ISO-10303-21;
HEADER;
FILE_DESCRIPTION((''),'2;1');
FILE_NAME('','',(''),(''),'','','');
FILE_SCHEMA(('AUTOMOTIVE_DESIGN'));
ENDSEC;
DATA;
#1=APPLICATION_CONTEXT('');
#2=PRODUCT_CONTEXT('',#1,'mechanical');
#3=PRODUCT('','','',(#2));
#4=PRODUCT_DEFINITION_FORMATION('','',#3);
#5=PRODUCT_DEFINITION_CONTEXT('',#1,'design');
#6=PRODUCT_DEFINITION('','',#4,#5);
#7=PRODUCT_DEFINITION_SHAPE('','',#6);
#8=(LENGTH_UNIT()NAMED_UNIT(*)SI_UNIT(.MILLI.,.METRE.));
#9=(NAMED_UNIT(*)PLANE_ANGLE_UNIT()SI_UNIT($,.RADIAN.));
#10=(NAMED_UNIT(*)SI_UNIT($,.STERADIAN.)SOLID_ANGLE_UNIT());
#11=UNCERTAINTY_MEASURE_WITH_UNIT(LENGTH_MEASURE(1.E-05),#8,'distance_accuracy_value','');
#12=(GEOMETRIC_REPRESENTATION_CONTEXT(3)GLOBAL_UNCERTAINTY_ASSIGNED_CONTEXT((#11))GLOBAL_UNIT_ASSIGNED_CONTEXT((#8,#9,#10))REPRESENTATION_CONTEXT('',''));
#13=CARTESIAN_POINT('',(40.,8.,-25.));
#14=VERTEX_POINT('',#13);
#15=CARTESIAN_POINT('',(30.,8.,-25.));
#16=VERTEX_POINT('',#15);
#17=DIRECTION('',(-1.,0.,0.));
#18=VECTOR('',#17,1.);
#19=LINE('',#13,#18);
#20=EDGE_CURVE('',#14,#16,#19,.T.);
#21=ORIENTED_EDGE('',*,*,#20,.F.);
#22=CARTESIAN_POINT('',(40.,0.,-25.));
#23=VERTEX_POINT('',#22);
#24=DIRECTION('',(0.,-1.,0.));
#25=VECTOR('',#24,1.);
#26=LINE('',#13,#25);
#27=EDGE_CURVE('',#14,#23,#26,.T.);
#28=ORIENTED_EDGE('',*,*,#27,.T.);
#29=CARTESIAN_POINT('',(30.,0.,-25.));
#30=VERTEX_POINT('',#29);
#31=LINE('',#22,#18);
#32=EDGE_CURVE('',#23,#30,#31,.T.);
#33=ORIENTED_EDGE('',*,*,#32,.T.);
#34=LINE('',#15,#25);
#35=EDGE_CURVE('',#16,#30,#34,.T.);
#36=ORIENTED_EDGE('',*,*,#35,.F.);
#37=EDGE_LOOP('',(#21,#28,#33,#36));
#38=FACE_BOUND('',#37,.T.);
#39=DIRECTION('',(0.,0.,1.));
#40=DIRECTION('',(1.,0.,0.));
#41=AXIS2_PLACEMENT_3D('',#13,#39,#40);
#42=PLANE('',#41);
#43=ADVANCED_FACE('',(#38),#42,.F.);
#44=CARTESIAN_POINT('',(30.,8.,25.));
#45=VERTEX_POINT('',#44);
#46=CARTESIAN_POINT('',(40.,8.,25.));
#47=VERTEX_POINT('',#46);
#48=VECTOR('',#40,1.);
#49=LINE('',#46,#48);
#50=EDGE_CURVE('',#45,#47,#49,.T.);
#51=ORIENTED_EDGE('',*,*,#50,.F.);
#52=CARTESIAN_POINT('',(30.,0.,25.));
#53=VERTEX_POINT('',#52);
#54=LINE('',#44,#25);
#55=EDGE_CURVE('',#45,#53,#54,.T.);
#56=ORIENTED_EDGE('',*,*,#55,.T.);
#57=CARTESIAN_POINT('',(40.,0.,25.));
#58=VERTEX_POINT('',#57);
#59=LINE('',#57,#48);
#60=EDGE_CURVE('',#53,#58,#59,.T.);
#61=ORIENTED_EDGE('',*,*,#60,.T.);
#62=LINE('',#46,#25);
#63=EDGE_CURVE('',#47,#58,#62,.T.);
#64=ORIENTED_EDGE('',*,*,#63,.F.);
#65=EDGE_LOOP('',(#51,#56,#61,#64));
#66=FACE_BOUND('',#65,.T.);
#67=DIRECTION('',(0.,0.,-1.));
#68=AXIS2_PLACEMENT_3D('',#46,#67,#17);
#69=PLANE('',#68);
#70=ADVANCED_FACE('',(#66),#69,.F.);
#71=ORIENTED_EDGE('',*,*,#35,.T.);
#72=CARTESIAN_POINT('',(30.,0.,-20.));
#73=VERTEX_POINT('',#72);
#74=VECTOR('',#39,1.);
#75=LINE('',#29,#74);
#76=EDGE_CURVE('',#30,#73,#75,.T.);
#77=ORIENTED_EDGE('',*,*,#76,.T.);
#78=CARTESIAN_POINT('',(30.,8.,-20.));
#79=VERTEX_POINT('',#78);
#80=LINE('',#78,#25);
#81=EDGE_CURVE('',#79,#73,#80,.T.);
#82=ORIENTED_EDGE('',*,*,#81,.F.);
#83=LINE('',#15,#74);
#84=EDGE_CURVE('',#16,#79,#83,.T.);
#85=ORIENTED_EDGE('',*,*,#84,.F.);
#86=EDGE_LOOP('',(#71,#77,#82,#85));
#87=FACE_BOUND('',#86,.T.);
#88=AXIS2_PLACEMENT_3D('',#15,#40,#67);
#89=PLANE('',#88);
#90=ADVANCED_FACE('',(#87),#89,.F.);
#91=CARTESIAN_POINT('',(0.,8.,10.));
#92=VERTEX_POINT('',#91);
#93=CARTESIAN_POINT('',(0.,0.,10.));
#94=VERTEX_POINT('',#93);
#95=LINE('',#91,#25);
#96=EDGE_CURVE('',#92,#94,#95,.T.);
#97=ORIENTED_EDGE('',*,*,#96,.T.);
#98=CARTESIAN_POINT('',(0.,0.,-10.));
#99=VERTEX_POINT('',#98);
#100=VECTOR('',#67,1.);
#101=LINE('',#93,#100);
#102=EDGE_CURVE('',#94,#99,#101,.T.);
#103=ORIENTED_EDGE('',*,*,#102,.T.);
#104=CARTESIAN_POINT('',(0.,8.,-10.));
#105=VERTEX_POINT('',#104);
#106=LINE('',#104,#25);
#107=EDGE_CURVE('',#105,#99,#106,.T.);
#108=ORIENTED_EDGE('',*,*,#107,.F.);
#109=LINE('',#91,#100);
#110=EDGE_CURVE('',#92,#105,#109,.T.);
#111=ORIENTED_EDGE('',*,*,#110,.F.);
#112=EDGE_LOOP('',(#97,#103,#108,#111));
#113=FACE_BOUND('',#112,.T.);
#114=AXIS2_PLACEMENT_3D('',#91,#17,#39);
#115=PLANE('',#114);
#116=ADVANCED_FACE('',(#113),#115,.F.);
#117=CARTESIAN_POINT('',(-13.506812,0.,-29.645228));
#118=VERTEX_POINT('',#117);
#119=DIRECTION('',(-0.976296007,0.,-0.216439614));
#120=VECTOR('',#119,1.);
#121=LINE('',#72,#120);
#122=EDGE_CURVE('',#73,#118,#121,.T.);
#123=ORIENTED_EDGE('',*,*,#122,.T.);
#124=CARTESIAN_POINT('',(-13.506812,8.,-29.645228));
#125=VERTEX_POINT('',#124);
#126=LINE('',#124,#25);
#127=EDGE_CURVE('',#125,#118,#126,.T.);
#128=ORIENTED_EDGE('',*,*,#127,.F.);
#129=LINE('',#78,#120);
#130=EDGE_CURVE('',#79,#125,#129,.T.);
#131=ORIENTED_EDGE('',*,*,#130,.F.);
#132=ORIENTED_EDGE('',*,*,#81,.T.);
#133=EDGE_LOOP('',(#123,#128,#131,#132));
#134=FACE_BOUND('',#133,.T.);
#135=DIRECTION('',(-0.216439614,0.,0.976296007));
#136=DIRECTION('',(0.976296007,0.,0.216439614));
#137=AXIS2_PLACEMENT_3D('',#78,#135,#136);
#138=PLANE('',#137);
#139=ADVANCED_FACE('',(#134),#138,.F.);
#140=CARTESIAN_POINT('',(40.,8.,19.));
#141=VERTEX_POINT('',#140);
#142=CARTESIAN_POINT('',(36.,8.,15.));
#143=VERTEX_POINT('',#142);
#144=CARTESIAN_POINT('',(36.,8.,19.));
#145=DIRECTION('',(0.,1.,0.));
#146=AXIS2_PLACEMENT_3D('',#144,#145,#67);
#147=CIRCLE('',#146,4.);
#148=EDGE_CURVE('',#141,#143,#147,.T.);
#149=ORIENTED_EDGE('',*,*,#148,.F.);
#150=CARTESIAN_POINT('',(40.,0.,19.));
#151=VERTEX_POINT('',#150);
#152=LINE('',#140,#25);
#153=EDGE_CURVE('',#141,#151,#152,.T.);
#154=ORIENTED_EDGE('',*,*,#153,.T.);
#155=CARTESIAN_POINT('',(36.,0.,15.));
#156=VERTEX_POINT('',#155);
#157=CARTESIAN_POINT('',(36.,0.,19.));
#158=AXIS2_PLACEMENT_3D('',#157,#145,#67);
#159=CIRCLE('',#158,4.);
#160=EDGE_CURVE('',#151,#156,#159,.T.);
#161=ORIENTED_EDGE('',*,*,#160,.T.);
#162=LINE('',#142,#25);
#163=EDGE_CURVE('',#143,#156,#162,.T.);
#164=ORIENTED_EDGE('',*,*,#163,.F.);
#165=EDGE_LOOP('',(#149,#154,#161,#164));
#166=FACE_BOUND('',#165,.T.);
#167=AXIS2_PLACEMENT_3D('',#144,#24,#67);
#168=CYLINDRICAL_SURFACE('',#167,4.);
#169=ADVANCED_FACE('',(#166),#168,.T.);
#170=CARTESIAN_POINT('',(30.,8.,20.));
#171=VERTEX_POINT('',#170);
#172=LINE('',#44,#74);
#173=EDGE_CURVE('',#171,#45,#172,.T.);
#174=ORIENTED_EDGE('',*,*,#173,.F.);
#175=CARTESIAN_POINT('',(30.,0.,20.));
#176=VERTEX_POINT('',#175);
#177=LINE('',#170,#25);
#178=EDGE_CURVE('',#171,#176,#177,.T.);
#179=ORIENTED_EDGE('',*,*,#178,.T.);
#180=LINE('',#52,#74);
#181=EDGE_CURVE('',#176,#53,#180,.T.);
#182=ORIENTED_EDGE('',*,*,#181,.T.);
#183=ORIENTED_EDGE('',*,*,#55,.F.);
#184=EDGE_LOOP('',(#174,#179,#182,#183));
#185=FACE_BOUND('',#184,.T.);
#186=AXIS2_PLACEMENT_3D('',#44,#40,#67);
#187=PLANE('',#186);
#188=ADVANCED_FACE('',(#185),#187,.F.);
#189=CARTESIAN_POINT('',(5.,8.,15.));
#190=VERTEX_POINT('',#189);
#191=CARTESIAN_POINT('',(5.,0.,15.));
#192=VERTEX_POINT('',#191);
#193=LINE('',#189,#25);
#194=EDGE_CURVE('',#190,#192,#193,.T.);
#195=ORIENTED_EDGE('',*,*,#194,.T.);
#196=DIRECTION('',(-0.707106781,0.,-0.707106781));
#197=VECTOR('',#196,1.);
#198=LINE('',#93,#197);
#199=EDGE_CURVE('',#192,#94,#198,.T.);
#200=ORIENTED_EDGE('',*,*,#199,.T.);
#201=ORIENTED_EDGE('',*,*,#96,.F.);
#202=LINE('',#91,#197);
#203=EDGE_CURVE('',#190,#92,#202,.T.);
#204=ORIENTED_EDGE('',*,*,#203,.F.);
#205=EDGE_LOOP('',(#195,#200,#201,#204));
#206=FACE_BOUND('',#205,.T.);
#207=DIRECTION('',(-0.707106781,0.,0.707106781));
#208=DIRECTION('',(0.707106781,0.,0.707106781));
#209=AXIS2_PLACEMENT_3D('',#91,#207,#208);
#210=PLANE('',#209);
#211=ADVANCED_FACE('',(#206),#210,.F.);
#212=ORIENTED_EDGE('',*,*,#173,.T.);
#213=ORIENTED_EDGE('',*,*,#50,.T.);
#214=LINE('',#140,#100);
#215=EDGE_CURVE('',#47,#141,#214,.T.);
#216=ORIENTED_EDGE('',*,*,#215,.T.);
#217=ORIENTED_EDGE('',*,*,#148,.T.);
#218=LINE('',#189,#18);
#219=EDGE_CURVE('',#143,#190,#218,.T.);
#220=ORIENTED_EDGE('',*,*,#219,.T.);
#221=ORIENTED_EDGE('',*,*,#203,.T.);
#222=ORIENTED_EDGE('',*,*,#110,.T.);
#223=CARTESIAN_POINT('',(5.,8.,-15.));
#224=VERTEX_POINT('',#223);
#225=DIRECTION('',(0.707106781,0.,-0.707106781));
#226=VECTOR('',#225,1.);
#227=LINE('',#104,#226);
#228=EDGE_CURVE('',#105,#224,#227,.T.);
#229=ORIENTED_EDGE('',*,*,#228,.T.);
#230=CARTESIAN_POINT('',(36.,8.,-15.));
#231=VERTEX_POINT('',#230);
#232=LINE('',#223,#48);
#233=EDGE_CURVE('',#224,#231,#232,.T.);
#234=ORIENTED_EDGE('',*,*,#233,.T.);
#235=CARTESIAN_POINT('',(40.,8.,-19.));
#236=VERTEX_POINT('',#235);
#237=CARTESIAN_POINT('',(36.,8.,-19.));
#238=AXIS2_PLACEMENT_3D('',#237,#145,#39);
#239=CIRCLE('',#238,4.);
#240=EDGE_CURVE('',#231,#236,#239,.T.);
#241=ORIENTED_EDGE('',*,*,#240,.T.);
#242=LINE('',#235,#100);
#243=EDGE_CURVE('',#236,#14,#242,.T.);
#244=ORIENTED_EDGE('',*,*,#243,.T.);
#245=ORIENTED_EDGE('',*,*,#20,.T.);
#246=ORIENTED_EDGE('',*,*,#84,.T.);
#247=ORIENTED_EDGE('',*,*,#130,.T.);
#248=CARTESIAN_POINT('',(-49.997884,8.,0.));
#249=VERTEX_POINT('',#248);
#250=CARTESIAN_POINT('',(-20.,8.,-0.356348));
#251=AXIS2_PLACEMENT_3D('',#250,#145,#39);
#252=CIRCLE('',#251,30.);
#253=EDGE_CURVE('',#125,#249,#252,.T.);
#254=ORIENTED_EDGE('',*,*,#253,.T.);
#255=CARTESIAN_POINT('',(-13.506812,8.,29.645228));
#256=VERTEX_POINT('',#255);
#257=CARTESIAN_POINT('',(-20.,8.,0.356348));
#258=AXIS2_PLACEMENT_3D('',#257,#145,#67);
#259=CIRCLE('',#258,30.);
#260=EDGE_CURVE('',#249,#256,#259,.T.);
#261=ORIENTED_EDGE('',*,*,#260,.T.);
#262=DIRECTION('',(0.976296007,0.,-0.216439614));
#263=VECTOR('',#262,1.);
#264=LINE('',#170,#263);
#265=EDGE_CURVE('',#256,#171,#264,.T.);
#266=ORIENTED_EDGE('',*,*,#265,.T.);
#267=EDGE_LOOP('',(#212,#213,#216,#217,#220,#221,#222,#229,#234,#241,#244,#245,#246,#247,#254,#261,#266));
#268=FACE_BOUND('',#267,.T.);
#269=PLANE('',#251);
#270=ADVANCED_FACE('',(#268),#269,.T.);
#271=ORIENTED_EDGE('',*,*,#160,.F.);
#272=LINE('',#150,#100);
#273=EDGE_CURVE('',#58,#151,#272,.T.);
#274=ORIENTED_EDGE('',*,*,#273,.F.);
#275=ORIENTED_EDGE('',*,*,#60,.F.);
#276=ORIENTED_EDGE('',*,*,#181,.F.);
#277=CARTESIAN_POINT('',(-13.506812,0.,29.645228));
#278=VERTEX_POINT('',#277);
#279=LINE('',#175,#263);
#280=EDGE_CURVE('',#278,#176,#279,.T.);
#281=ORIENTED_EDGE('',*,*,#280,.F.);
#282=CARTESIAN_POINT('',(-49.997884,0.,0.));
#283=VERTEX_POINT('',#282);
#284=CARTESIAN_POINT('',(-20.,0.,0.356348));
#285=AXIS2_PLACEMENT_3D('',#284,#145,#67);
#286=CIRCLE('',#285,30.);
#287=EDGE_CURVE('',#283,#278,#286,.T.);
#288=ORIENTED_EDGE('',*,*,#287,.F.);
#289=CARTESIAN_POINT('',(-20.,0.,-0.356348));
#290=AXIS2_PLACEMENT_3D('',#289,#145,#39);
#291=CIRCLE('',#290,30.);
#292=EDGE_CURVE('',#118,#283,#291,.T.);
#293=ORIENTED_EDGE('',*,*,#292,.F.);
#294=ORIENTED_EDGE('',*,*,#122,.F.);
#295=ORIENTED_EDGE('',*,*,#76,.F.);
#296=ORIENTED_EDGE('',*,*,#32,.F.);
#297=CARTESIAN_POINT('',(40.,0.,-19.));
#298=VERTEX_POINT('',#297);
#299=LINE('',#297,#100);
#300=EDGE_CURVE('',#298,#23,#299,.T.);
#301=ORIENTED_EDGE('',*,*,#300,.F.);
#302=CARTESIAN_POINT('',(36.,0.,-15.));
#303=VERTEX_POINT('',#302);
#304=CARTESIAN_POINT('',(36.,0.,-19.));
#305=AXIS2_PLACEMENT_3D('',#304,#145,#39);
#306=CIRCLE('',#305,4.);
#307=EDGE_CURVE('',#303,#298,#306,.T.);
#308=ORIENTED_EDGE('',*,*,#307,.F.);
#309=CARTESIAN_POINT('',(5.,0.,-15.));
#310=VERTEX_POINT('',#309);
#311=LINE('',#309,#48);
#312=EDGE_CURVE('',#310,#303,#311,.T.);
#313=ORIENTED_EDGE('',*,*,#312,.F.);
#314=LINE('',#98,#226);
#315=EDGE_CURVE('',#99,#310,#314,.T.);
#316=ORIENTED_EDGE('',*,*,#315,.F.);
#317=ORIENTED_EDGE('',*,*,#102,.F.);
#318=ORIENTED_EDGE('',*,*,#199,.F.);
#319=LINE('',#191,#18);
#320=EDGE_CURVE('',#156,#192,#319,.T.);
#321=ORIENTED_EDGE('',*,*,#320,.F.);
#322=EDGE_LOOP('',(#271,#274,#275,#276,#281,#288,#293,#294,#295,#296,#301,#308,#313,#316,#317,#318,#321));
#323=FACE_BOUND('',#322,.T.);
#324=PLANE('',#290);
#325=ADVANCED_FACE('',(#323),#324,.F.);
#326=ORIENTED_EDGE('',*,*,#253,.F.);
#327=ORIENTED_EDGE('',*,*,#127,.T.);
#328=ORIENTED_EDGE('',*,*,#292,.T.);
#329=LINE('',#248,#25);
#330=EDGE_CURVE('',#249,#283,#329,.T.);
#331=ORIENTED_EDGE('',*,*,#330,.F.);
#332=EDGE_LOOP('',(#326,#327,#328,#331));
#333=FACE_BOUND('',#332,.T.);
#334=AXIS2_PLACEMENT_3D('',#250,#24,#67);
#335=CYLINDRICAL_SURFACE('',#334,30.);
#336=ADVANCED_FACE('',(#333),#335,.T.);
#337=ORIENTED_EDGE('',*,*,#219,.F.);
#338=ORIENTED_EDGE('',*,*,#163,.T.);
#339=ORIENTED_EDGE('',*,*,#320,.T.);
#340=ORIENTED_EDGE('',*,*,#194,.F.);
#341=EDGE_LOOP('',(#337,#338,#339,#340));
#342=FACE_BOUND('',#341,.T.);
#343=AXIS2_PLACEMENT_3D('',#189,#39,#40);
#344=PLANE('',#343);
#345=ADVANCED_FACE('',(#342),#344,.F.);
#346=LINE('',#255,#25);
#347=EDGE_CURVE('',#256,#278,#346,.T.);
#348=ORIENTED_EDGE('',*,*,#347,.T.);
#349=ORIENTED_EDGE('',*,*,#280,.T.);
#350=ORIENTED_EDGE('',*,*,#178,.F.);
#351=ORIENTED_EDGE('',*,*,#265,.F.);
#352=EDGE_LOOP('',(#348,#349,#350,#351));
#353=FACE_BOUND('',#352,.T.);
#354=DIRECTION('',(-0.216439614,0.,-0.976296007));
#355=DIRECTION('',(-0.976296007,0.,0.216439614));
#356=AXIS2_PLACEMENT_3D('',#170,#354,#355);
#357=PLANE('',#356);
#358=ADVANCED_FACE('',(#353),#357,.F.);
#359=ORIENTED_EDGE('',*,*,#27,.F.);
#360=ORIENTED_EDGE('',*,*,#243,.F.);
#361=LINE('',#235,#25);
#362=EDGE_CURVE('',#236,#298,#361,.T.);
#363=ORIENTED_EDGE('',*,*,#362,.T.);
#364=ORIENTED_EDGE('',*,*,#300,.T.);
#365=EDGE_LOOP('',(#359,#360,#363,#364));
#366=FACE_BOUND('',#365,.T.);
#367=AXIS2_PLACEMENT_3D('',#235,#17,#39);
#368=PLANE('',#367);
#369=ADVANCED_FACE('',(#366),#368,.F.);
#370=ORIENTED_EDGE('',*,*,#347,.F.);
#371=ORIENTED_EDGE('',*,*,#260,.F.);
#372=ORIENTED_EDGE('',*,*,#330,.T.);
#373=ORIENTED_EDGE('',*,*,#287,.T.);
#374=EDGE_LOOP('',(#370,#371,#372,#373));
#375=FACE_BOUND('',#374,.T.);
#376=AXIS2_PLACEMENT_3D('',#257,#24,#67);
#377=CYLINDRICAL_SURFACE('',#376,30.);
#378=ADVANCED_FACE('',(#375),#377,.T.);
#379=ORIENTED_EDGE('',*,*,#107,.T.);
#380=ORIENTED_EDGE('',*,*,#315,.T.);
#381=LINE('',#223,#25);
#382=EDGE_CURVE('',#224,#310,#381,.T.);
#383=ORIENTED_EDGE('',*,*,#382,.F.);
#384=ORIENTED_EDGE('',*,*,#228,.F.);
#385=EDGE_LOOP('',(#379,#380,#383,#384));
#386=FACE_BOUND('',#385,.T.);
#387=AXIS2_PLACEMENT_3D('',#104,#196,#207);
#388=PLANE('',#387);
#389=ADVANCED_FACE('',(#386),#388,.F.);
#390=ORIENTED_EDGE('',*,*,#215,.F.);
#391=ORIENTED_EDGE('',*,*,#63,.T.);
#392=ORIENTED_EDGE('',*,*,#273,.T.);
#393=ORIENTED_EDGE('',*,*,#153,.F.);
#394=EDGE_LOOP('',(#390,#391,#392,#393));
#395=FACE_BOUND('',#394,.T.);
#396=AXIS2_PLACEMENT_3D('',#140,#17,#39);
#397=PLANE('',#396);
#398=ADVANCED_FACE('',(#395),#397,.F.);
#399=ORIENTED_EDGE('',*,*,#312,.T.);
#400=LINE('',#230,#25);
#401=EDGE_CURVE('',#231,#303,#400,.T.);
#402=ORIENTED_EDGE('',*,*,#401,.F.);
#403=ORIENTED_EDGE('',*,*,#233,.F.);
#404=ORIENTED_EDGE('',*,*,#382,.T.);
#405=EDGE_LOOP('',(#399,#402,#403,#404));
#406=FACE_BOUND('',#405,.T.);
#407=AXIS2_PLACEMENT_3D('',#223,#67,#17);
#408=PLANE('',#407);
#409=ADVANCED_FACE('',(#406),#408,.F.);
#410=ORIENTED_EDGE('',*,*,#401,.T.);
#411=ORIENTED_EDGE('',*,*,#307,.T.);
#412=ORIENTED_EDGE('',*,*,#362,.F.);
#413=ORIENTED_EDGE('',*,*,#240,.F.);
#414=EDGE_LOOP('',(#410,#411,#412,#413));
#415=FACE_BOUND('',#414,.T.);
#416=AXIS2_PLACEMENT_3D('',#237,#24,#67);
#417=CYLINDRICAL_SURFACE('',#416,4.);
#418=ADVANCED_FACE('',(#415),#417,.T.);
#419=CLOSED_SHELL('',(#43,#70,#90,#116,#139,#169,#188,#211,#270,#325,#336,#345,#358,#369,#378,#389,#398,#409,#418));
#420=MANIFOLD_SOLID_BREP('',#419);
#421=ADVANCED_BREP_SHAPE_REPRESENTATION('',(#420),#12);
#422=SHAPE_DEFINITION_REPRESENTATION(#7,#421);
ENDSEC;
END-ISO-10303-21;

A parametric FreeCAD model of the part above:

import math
import FreeCAD as App
import Part
import Sketcher
from FreeCAD import Vector
Q = App.Units.Quantity

doc = App.newDocument("Part")
params = doc.addObject("Spreadsheet::Sheet", "Params")
for row, (alias, value) in enumerate([
    ("sketch1_radius", "4 mm"),
    ("sketch1_radius2", "30 mm"),
    ("sketch1_width", "31 mm"),
    ("sketch1_width2", "10 mm"),
    ("sketch1_height", "20 mm"),
    ("pad1_length", "8 mm"),
], start=1):
    params.set(f"A{row}", alias)
    params.set(f"B{row}", "=" + value)
    params.setAlias(f"B{row}", alias)

body = doc.addObject("PartDesign::Body", "Body")

# Sketch on XZ plane
sketch1 = doc.addObject("Sketcher::SketchObject", "Sketch")
body.addObject(sketch1)
sketch1.AttachmentSupport = (doc.XZ_Plane, [""])
sketch1.MapMode = "FlatFace"
sketch1.addGeometry([
    Part.LineSegment(Vector(0, 10, 0), Vector(0, -10, 0)),  # 0
    Part.LineSegment(Vector(0, -10, 0), Vector(5, -15, 0)),  # 1
    Part.LineSegment(Vector(5, -15, 0), Vector(36, -15, 0)),  # 2
    Part.ArcOfCircle(Part.Circle(Vector(36, -19, 0), Vector(0, 0, 1), 4), math.radians(0), math.radians(90)),  # 3
    Part.LineSegment(Vector(40, -19, 0), Vector(40, -25, 0)),  # 4
    Part.LineSegment(Vector(40, -25, 0), Vector(30, -25, 0)),  # 5
    Part.LineSegment(Vector(30, -25, 0), Vector(30, -20, 0)),  # 6
    Part.LineSegment(Vector(30, -20, 0), Vector(-13.506812, -29.645228, 0)),  # 7
    Part.ArcOfCircle(Part.Circle(Vector(-20, -0.356348, 0), Vector(0, 0, 1), 30), math.radians(179.31941), math.radians(282.5)),  # 8
    Part.ArcOfCircle(Part.Circle(Vector(-20, 0.356348, 0), Vector(0, 0, 1), 30), math.radians(77.5), math.radians(180.68059)),  # 9
    Part.LineSegment(Vector(-13.506812, 29.645228, 0), Vector(30, 20, 0)),  # 10
    Part.LineSegment(Vector(30, 20, 0), Vector(30, 25, 0)),  # 11
    Part.LineSegment(Vector(30, 25, 0), Vector(40, 25, 0)),  # 12
    Part.LineSegment(Vector(40, 25, 0), Vector(40, 19, 0)),  # 13
    Part.ArcOfCircle(Part.Circle(Vector(36, 19, 0), Vector(0, 0, 1), 4), math.radians(-90), math.radians(0)),  # 14
    Part.LineSegment(Vector(36, 15, 0), Vector(5, 15, 0)),  # 15
    Part.LineSegment(Vector(5, 15, 0), Vector(0, 10, 0)),  # 16
], False)
sketch1.addConstraint([
    Sketcher.Constraint("Coincident", 0, 2, 1, 1),
    Sketcher.Constraint("Coincident", 1, 2, 2, 1),
    Sketcher.Constraint("Tangent", 2, 2, 3, 2),
    Sketcher.Constraint("Tangent", 3, 1, 4, 1),
    Sketcher.Constraint("Coincident", 4, 2, 5, 1),
    Sketcher.Constraint("Coincident", 5, 2, 6, 1),
    Sketcher.Constraint("Coincident", 6, 2, 7, 1),
    Sketcher.Constraint("Tangent", 7, 2, 8, 2),
    Sketcher.Constraint("Coincident", 8, 1, 9, 2),
    Sketcher.Constraint("Tangent", 9, 1, 10, 1),
    Sketcher.Constraint("Coincident", 10, 2, 11, 1),
    Sketcher.Constraint("Coincident", 11, 2, 12, 1),
    Sketcher.Constraint("Coincident", 12, 2, 13, 1),
    Sketcher.Constraint("Tangent", 13, 2, 14, 2),
    Sketcher.Constraint("Tangent", 14, 1, 15, 1),
    Sketcher.Constraint("Coincident", 15, 2, 16, 1),
    Sketcher.Constraint("Coincident", 16, 2, 0, 1),
    Sketcher.Constraint("Vertical", 0),
    Sketcher.Constraint("Horizontal", 2),
    Sketcher.Constraint("Vertical", 4),
    Sketcher.Constraint("Horizontal", 5),
    Sketcher.Constraint("Vertical", 6),
    Sketcher.Constraint("Vertical", 11),
    Sketcher.Constraint("Horizontal", 12),
    Sketcher.Constraint("Vertical", 13),
    Sketcher.Constraint("Horizontal", 15),
    Sketcher.Constraint("Equal", 8, 9),
    Sketcher.Constraint("Equal", 3, 14),
    Sketcher.Constraint("Symmetric", 0, 2, 16, 2, -1, 1),
    Sketcher.Constraint("Symmetric", 8, 3, 9, 3, -1),
    Sketcher.Constraint("Symmetric", 3, 3, 14, 3, -1),
    Sketcher.Constraint("Symmetric", 6, 2, 10, 2, -1),
    Sketcher.Constraint("Perpendicular", 1, 16),
    Sketcher.Constraint("Vertical", 1, 2, 15, 2),
    Sketcher.Constraint("Equal", 6, 11),
    Sketcher.Constraint("Radius", 3, Q("4 mm")),
    Sketcher.Constraint("Radius", 8, Q("30 mm")),
    Sketcher.Constraint("DistanceX", 2, 1, 2, 2, Q("31 mm")),
    Sketcher.Constraint("DistanceX", 5, 2, 5, 1, Q("10 mm")),
    Sketcher.Constraint("DistanceY", 0, 2, 0, 1, Q("20 mm")),
    Sketcher.Constraint("DistanceY", 4, 2, 4, 1, Q("6 mm")),
    Sketcher.Constraint("DistanceY", 6, 1, 6, 2, Q("5 mm")),
    Sketcher.Constraint("DistanceX", -1, 1, 3, 3, Q("36 mm")),
    Sketcher.Constraint("DistanceX", 8, 3, -1, 1, Q("20 mm")),
    Sketcher.Constraint("Angle", 7, Q("-167.5 deg")),
])
sketch1.setExpression("Constraints[35]", "Params.sketch1_radius")
sketch1.setExpression("Constraints[36]", "Params.sketch1_radius2")
sketch1.setExpression("Constraints[37]", "Params.sketch1_width")
sketch1.setExpression("Constraints[38]", "Params.sketch1_width2")
sketch1.setExpression("Constraints[39]", "Params.sketch1_height")
pad1 = doc.addObject("PartDesign::Pad", "Pad")
body.addObject(pad1)
pad1.Profile = sketch1
pad1.setExpression("Length", "Params.pad1_length")
pad1.Reversed = True

doc.recompute()
